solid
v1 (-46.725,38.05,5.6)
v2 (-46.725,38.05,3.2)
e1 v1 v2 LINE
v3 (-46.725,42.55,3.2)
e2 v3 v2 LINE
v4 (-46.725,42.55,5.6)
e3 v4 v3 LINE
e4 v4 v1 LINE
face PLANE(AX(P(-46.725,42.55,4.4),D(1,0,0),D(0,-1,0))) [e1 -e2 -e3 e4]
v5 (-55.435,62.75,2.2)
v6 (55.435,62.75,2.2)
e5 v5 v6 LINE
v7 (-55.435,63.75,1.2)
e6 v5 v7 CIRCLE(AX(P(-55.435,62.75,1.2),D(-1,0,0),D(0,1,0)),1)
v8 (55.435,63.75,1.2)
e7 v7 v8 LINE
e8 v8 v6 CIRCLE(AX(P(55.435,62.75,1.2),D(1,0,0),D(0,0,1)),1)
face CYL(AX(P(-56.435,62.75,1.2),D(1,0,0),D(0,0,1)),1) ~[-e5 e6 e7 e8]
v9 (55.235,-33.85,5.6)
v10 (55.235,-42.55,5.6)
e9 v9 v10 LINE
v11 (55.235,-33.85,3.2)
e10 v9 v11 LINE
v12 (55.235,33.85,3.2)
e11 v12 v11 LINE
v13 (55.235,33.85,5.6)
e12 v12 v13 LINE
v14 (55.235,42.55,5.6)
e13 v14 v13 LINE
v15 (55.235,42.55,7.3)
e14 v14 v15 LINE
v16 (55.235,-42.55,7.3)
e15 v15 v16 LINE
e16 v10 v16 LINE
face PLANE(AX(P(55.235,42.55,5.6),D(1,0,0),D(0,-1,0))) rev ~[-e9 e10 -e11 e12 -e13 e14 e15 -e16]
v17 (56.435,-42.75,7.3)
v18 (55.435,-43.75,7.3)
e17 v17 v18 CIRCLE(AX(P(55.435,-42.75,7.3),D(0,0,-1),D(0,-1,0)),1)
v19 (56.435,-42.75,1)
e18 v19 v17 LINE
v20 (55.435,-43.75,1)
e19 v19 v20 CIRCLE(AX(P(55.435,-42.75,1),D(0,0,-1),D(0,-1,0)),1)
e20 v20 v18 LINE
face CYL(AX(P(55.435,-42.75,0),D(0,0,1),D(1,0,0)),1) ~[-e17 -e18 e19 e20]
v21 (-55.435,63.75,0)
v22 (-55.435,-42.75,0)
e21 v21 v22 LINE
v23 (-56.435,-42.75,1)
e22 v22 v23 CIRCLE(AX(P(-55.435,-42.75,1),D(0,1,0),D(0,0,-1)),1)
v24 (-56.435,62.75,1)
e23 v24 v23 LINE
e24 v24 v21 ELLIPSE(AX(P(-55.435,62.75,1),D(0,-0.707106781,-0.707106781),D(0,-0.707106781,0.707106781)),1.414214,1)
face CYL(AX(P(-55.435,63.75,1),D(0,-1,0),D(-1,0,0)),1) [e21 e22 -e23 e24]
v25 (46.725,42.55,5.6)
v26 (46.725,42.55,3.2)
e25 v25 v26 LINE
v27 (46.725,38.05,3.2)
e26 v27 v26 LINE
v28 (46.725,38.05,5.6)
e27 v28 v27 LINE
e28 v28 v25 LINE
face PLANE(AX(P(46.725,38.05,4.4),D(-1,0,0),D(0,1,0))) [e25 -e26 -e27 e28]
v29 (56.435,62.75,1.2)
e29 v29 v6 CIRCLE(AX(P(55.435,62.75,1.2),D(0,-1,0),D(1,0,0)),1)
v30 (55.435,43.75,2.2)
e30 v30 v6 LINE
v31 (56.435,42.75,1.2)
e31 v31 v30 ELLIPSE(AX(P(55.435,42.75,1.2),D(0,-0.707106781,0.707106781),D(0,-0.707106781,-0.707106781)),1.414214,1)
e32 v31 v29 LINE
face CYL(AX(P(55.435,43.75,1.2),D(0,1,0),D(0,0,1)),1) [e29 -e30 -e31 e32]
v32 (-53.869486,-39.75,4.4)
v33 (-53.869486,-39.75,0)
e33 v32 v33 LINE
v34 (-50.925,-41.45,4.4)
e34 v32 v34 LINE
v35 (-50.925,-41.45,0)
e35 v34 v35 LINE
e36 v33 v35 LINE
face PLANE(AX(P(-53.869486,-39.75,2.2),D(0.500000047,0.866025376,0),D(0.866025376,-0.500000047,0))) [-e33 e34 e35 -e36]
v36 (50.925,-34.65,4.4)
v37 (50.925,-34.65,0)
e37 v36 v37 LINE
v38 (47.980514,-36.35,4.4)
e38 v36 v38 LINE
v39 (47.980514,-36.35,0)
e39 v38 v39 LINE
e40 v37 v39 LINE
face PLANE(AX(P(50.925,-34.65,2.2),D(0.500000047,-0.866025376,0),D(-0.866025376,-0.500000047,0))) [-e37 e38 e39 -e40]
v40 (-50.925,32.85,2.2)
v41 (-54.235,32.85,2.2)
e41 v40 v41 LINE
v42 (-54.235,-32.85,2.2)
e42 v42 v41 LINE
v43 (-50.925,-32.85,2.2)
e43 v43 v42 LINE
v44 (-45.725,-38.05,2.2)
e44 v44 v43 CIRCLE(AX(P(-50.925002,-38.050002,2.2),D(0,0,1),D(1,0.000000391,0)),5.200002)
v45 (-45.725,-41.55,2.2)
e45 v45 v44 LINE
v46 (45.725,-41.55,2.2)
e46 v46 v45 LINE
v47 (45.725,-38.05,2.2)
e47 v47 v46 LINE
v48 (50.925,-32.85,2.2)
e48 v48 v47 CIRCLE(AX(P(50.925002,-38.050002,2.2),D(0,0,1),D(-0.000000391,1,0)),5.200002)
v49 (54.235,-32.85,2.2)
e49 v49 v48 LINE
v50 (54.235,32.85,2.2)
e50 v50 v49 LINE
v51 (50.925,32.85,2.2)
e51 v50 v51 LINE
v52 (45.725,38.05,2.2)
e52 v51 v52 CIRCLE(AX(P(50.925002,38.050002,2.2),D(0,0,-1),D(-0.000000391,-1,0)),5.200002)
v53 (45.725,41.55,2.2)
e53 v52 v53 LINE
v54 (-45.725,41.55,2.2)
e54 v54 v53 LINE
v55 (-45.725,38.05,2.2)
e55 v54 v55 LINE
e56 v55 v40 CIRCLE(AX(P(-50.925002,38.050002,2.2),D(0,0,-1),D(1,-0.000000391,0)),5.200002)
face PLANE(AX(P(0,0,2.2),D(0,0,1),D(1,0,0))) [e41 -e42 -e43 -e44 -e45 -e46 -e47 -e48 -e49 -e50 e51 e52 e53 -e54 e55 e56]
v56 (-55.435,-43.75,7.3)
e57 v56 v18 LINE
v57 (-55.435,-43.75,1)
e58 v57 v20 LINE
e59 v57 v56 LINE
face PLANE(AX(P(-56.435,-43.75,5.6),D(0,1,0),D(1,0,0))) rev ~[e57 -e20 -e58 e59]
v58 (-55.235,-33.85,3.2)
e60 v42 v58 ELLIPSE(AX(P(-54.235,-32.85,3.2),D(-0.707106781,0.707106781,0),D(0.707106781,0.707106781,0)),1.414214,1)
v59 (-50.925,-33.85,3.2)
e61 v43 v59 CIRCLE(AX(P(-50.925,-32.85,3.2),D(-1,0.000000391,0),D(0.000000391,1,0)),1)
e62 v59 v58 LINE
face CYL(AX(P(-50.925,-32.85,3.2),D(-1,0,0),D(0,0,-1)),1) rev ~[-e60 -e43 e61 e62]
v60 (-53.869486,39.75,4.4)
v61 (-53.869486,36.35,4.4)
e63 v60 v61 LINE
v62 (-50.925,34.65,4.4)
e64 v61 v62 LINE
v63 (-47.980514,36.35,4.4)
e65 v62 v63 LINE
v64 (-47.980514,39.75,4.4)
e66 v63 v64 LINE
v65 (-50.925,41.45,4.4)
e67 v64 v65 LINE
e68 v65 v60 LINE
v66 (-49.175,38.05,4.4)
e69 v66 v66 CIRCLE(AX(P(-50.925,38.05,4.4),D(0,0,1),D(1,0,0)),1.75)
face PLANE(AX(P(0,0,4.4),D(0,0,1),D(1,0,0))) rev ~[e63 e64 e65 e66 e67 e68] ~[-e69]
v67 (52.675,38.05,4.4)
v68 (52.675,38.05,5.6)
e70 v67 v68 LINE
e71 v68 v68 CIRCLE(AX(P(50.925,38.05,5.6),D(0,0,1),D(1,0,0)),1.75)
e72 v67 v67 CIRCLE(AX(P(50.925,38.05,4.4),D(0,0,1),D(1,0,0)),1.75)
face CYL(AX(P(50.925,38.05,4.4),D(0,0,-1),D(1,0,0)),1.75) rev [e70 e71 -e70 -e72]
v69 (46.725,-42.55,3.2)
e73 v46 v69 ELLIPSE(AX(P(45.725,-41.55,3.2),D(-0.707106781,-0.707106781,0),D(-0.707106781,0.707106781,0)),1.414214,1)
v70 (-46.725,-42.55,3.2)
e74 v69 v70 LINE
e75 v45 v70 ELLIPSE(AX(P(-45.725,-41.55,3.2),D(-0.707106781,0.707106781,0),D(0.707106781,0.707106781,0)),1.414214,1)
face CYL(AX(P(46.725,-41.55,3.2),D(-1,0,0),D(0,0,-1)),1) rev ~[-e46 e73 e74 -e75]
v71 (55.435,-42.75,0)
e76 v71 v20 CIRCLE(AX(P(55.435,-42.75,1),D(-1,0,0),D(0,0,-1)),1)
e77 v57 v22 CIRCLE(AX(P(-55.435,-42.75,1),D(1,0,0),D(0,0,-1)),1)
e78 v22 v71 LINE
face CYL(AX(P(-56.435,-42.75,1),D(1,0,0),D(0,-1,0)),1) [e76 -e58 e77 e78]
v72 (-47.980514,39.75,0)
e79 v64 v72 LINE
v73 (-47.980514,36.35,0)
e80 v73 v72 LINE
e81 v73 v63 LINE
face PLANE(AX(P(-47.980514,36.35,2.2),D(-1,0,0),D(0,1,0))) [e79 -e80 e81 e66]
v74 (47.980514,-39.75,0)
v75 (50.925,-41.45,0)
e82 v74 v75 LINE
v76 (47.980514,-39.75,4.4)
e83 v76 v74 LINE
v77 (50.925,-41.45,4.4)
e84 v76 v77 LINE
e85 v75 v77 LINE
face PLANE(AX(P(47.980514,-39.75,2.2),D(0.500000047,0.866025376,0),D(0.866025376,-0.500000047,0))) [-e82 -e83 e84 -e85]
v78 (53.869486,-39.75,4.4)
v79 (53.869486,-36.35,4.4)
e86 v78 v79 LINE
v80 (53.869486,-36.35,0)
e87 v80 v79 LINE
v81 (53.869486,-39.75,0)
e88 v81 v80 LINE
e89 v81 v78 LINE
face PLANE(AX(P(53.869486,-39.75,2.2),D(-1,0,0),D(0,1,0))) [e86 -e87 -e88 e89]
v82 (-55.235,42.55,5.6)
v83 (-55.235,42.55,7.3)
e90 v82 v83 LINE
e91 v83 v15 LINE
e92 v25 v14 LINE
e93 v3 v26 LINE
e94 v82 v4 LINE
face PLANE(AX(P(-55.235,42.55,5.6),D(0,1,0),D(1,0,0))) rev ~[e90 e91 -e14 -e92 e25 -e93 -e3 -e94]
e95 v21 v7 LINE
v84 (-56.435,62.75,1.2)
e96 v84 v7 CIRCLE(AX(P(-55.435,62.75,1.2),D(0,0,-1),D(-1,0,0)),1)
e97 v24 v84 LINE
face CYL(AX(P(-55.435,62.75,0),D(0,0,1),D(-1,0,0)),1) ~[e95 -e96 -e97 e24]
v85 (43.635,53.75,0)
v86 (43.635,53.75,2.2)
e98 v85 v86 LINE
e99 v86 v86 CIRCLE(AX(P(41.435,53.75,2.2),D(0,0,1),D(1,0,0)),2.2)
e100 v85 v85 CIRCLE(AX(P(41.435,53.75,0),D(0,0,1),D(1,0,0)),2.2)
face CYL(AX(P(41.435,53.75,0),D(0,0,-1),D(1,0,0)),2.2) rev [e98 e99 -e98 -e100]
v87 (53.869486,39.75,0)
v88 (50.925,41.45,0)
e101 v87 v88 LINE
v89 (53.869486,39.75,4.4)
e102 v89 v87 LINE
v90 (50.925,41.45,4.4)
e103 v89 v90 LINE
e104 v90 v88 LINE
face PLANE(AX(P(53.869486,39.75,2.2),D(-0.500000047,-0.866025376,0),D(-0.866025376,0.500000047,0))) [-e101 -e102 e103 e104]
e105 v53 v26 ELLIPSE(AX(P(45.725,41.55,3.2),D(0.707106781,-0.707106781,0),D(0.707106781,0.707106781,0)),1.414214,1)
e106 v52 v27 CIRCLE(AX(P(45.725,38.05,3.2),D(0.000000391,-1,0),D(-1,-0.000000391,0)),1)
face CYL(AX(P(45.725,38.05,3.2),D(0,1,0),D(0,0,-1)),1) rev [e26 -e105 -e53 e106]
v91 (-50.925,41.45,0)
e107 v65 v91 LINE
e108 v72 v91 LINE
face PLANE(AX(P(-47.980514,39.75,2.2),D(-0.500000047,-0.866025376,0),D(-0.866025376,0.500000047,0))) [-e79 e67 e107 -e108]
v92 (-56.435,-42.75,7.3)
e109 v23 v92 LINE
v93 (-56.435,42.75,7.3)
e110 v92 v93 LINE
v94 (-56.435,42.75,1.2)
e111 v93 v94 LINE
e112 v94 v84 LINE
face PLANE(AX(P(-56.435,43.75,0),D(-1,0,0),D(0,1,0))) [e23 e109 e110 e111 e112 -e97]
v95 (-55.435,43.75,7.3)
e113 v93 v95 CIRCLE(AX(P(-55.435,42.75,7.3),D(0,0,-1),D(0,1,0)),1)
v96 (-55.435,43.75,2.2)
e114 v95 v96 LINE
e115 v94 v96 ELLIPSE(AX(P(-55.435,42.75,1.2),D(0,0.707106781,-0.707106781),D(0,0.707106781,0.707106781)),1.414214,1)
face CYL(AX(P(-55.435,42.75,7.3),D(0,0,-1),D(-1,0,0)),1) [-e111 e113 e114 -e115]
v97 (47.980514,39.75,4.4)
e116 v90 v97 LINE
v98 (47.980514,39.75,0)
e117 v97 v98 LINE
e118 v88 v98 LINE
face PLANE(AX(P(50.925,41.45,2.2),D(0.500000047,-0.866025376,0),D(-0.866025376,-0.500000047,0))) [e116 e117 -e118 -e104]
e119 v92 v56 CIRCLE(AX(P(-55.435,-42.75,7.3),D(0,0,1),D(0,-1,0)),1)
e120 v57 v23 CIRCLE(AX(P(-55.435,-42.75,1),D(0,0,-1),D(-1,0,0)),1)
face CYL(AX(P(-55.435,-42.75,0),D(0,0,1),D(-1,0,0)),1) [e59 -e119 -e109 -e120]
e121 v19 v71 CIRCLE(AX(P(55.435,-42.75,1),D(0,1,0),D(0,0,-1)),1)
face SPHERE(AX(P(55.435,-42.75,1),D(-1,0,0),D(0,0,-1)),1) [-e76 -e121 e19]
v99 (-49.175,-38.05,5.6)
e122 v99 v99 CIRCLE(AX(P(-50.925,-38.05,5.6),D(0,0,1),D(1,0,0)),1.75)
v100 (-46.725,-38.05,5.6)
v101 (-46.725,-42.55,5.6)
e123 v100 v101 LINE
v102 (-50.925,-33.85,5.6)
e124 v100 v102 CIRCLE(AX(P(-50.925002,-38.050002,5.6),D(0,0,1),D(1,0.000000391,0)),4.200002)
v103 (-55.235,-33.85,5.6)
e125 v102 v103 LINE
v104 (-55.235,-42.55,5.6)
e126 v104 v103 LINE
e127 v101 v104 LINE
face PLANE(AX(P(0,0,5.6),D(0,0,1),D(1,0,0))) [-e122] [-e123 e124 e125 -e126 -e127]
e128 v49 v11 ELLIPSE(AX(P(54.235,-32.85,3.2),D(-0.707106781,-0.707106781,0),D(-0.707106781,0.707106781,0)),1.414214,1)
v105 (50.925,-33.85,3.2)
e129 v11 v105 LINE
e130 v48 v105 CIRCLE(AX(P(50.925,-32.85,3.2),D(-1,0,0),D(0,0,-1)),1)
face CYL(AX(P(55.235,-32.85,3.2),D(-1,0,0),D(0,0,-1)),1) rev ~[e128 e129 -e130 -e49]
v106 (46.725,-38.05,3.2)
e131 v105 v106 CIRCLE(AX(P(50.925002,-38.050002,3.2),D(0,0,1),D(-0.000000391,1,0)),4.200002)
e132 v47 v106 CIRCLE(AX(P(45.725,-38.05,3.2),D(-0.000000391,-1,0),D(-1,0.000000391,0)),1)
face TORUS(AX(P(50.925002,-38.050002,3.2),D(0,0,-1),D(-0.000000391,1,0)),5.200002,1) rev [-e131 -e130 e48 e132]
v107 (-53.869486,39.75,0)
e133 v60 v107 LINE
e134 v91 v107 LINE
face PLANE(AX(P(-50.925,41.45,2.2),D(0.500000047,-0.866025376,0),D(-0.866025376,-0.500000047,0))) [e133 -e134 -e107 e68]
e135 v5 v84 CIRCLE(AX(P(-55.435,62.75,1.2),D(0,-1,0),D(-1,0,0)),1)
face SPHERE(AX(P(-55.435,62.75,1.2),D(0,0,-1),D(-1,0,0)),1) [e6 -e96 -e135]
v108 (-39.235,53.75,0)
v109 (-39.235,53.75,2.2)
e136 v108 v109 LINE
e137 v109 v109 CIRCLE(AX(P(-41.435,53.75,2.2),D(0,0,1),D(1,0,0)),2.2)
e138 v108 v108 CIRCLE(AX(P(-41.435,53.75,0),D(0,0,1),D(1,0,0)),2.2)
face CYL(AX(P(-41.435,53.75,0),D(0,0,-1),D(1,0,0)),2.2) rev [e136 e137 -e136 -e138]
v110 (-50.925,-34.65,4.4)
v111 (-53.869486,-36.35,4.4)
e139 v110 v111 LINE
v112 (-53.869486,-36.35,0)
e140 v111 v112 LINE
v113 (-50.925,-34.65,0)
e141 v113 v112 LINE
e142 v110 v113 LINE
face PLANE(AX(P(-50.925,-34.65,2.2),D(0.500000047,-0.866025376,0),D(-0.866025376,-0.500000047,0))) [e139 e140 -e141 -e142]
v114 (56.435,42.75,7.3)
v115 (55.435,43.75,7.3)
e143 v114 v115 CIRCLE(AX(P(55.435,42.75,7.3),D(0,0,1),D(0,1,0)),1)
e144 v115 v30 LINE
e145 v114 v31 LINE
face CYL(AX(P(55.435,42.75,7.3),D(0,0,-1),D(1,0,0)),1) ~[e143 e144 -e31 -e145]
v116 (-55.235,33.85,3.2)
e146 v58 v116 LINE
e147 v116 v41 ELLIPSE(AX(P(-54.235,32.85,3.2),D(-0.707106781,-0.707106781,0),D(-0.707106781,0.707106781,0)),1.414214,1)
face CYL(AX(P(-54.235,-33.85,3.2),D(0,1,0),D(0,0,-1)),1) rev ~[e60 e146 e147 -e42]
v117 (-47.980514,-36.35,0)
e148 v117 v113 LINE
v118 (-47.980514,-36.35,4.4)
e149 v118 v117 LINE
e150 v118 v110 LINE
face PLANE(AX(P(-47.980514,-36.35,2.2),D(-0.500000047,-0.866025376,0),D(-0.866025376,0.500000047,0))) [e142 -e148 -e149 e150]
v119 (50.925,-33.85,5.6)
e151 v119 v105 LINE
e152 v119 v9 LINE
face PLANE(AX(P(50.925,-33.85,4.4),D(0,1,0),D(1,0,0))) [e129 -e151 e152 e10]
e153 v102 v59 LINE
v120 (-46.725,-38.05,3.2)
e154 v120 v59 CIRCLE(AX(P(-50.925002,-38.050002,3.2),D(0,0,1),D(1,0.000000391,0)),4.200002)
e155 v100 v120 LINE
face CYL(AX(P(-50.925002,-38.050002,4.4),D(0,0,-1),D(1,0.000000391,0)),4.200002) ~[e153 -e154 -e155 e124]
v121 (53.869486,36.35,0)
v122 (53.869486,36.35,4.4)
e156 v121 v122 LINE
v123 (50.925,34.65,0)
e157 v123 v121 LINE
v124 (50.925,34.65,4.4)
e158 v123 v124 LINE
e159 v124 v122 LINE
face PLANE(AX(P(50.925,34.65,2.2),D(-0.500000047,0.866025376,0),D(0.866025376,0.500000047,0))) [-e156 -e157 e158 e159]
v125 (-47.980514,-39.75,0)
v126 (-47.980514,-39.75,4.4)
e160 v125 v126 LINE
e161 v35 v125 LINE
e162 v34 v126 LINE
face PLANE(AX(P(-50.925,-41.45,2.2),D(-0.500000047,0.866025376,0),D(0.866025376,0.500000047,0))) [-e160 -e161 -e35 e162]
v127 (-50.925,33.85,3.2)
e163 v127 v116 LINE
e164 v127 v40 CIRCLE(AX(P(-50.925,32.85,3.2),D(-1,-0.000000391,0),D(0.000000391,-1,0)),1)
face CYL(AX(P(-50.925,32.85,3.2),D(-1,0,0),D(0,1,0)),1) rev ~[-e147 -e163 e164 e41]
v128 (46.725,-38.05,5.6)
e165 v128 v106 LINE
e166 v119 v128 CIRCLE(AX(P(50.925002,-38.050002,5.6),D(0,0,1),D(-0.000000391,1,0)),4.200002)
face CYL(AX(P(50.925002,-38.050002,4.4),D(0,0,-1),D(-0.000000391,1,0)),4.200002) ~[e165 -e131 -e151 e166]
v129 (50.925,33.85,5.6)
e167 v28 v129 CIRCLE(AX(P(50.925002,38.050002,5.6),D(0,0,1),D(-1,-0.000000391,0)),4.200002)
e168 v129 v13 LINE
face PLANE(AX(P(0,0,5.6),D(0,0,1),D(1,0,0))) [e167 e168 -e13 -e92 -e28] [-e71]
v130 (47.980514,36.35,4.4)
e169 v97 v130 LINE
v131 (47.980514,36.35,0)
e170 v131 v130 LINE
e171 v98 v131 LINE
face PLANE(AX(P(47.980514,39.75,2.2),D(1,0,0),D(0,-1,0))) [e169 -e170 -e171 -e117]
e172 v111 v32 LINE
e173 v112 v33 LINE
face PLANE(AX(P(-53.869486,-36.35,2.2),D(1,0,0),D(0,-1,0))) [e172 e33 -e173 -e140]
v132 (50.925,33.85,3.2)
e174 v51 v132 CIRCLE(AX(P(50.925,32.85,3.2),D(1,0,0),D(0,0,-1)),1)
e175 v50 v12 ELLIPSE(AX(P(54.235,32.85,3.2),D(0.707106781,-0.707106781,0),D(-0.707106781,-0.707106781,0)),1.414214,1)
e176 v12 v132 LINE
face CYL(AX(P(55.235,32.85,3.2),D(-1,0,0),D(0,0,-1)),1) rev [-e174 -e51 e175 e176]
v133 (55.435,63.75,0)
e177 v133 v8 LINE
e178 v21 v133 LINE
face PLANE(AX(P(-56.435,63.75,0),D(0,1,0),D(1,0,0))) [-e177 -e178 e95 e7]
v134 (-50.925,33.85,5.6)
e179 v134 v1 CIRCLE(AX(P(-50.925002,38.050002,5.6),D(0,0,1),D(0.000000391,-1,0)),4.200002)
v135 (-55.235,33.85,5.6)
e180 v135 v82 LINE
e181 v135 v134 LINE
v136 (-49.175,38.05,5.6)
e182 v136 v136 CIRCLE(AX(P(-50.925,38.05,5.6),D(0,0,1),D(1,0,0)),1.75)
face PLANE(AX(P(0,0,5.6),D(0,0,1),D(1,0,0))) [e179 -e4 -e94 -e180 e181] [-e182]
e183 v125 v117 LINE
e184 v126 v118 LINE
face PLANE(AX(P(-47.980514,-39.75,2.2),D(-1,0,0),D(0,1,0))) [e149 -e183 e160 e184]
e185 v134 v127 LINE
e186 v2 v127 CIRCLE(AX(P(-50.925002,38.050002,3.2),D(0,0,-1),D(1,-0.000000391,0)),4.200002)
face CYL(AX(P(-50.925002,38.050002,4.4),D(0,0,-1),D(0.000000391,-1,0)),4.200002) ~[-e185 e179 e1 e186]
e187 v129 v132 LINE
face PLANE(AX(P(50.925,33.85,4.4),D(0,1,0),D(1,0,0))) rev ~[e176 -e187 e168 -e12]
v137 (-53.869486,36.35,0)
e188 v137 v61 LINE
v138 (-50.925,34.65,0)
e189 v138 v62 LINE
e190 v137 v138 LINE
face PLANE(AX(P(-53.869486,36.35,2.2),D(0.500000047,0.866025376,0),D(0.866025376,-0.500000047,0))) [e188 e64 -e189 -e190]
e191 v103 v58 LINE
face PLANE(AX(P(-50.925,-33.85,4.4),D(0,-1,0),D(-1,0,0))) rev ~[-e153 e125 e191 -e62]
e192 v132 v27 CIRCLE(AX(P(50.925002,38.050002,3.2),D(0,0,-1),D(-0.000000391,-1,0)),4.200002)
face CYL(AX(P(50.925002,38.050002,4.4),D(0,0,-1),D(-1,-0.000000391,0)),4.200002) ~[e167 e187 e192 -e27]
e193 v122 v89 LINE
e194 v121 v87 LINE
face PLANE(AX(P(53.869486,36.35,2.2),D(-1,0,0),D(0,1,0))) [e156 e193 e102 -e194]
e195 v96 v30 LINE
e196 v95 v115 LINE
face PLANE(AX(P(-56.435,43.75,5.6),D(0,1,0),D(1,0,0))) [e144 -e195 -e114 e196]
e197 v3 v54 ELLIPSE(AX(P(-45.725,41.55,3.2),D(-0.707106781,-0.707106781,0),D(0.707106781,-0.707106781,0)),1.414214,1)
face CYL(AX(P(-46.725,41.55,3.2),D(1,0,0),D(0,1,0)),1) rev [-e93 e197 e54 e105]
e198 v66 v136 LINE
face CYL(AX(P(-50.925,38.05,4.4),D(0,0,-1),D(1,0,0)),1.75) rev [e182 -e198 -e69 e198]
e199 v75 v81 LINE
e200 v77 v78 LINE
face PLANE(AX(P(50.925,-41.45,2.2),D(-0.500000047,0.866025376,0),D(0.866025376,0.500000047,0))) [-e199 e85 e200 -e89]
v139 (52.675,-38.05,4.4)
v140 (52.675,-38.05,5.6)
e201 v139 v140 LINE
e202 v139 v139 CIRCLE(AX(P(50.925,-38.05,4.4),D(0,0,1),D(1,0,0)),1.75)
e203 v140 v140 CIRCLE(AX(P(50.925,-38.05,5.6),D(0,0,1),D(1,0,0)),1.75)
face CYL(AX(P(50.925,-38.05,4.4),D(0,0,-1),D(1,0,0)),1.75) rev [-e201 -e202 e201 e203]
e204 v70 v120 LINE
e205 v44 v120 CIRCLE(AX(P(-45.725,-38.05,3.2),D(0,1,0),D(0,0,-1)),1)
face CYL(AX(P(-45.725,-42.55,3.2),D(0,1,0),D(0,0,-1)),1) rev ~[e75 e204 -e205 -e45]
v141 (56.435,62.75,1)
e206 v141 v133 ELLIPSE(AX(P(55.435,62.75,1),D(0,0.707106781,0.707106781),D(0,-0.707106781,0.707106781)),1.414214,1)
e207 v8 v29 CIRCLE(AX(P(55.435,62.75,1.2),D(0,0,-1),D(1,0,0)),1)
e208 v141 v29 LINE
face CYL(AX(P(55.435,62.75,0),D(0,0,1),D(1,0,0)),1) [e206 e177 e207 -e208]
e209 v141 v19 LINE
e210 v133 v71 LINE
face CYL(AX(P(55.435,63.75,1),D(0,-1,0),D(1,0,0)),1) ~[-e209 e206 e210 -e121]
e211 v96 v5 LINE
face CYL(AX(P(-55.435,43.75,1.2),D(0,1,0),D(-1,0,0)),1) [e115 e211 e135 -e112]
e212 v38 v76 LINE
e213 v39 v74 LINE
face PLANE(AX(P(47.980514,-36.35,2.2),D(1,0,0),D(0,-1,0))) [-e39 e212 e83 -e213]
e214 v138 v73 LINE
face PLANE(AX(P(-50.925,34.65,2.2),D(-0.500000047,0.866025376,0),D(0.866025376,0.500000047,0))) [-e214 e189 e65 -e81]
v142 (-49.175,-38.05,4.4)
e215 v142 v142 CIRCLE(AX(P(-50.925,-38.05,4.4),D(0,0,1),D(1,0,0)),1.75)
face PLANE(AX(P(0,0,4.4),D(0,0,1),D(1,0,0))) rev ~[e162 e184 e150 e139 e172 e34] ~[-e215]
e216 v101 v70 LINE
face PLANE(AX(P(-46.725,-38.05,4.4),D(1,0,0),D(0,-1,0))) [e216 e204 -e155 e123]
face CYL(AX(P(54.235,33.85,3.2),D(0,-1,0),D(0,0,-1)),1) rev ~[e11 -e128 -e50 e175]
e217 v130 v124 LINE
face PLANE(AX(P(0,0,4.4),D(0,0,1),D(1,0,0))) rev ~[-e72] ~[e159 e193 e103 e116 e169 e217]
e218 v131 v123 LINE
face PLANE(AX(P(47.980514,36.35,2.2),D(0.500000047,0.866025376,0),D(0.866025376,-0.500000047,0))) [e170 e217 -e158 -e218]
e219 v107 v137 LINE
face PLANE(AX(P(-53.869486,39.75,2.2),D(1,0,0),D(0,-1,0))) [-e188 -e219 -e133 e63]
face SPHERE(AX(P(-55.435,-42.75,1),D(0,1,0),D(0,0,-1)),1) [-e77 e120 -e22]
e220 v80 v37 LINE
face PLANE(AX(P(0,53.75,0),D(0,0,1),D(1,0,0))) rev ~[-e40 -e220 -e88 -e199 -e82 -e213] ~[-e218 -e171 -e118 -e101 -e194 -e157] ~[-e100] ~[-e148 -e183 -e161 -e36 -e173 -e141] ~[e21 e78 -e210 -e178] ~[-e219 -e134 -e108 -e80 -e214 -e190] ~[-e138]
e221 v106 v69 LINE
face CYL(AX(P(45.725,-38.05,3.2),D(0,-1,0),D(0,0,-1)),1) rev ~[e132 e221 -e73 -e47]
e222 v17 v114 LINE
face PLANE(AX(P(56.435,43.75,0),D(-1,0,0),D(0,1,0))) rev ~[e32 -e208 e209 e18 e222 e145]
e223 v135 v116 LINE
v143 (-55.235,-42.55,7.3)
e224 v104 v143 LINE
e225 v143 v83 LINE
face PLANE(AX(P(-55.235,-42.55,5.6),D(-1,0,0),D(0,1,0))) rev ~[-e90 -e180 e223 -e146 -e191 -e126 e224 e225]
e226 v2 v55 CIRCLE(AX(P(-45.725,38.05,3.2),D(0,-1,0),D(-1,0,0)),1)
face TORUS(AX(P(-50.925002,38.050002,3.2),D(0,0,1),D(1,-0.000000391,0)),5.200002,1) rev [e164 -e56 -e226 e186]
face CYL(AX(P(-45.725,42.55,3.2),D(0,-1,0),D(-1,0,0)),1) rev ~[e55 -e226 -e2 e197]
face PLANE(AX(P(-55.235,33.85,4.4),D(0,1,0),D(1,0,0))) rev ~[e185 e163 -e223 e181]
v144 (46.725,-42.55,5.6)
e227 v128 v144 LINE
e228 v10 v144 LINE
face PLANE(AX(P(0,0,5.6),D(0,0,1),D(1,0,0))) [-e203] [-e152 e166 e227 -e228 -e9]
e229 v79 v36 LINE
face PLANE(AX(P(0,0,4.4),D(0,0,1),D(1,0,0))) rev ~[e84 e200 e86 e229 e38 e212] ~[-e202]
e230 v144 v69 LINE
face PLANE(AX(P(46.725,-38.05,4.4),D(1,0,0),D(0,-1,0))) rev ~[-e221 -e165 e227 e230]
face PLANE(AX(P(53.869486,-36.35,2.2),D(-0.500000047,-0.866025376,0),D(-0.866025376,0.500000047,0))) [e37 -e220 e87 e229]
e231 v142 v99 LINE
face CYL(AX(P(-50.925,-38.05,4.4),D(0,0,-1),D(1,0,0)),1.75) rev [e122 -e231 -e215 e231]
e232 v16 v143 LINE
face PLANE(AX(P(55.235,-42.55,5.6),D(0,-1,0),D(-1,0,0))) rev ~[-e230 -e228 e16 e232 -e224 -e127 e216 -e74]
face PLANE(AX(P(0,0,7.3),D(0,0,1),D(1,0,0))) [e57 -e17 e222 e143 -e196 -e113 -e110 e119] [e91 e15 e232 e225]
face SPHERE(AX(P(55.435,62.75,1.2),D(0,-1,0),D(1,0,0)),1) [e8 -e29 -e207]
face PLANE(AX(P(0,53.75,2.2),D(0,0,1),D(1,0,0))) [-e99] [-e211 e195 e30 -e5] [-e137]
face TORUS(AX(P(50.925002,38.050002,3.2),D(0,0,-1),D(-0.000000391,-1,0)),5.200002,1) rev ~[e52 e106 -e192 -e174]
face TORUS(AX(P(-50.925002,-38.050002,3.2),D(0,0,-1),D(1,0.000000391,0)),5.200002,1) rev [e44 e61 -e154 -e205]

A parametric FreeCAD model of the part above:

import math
import FreeCAD as App
import Part
import Sketcher
Q = App.Units.Quantity


def edges_at(feature, points):
    """Names of the edges that pass closest to the given points."""
    edges = feature.Shape.Edges
    near = lambda p: min(range(len(edges)), key=lambda i: edges[i].distToShape(Part.Vertex(*p))[0])
    return sorted({f"Edge{near(p) + 1}" for p in points})


def add_polygon(sketch, points):
    """Adds a closed chain of lines whose ends are joined by coincident constraints."""
    first, n = sketch.GeometryCount, len(points)
    for a, b in zip(points, points[1:] + points[:1]):
        sketch.addGeometry(Part.LineSegment(App.Vector(*a, 0), App.Vector(*b, 0)), False)
    for i in range(n):
        sketch.addConstraint(Sketcher.Constraint("Coincident", first + i, 2, first + (i + 1) % n, 1))

doc = App.newDocument("Part")
params = doc.addObject("Spreadsheet::Sheet", "Params")
for row, (alias, value) in enumerate([
    ("sketch1_height", "87.5 mm"),
    ("sketch1_height2", "3.4 mm"),
    ("sketch1_width", "112.87 mm"),
    ("pad1_length", "2.2 mm"),
    ("sketch2_radius", "4.200002 mm"),
    ("sketch2_height", "87.5 mm"),
    ("sketch2_height2", "3.4 mm"),
    ("sketch2_height3", "67.7 mm"),
    ("sketch2_height4", "4.5 mm"),
    ("pad2_length", "2.2 mm"),
    ("sketch3_diameter", "3.5 mm"),
    ("sketch3_radius", "4.200002 mm"),
    ("sketch3_height", "87.5 mm"),
    ("sketch3_height2", "67.7 mm"),
    ("sketch3_height3", "4.5 mm"),
    ("pad3_length", "1.2 mm"),
    ("sketch4_height", "87.5 mm"),
    ("sketch4_height2", "85.1 mm"),
    ("sketch4_width", "112.87 mm"),
    ("sketch4_width2", "110.47 mm"),
    ("pad4_length", "1.7 mm"),
    ("sketch5_diameter", "4.4 mm"),
    ("sketch5_height", "20 mm"),
    ("sketch5_width", "112.87 mm"),
    ("pad5_length", "2.2 mm"),
    ("fillet_radius", "1 mm"),
], start=1):
    params.set(f"A{row}", alias)
    params.set(f"B{row}", "=" + value)
    params.setAlias(f"B{row}", alias)

body = doc.addObject("PartDesign::Body", "Body")

# Sketch on XY plane
sketch1 = body.newObject("Sketcher::SketchObject", "Sketch")
sketch1.AttachmentSupport = (doc.getObject("XY_Plane"), [""])
sketch1.MapMode = "FlatFace"
add_polygon(sketch1, [(-56.435, 43.75), (-56.435, -43.75), (56.435, -43.75), (56.435, 43.75)])  # lines 0-3
add_polygon(sketch1, [(-47.980514, -36.35), (-47.980514, -39.75), (-50.925, -41.45), (-53.869486, -39.75), (-53.869486, -36.35), (-50.925, -34.65)])  # lines 4-9
add_polygon(sketch1, [(50.925, -34.65), (53.869486, -36.35), (53.869486, -39.75), (50.925, -41.45), (47.980514, -39.75), (47.980514, -36.35)])  # lines 10-15
add_polygon(sketch1, [(-47.980514, 39.75), (-47.980514, 36.35), (-50.925, 34.65), (-53.869486, 36.35), (-53.869486, 39.75), (-50.925, 41.45)])  # lines 16-21
add_polygon(sketch1, [(53.869486, 39.75), (53.869486, 36.35), (50.925, 34.65), (47.980514, 36.35), (47.980514, 39.75), (50.925, 41.45)])  # lines 22-27
sketch1.addConstraint(Sketcher.Constraint("Vertical", 0))
sketch1.addConstraint(Sketcher.Constraint("Horizontal", 1))
sketch1.addConstraint(Sketcher.Constraint("Vertical", 2))
sketch1.addConstraint(Sketcher.Constraint("Horizontal", 3))
sketch1.addConstraint(Sketcher.Constraint("Vertical", 4))
sketch1.addConstraint(Sketcher.Constraint("Vertical", 7))
sketch1.addConstraint(Sketcher.Constraint("Vertical", 11))
sketch1.addConstraint(Sketcher.Constraint("Vertical", 14))
sketch1.addConstraint(Sketcher.Constraint("Vertical", 16))
sketch1.addConstraint(Sketcher.Constraint("Vertical", 19))
sketch1.addConstraint(Sketcher.Constraint("Vertical", 22))
sketch1.addConstraint(Sketcher.Constraint("Vertical", 25))
sketch1.addConstraint(Sketcher.Constraint("Symmetric", 0, 2, 2, 2, -1, 1))
sketch1.addConstraint(Sketcher.Constraint("Symmetric", 14, 2, 16, 2, -1, 1))
sketch1.addConstraint(Sketcher.Constraint("Symmetric", 15, 2, 17, 2, -1, 1))
sketch1.addConstraint(Sketcher.Constraint("Symmetric", 10, 2, 18, 2, -1, 1))
sketch1.addConstraint(Sketcher.Constraint("Symmetric", 12, 2, 20, 2, -1, 1))
sketch1.addConstraint(Sketcher.Constraint("Symmetric", 7, 2, 22, 2, -1, 1))
sketch1.addConstraint(Sketcher.Constraint("Symmetric", 8, 2, 23, 2, -1, 1))
sketch1.addConstraint(Sketcher.Constraint("Symmetric", 9, 2, 24, 2, -1, 1))
sketch1.addConstraint(Sketcher.Constraint("Symmetric", 5, 2, 26, 2, -1, 1))
sketch1.addConstraint(Sketcher.Constraint("Symmetric", 7, 2, 10, 2, -2))
sketch1.addConstraint(Sketcher.Constraint("Symmetric", 5, 2, 12, 2, -2))
sketch1.addConstraint(Sketcher.Constraint("Symmetric", 4, 2, 13, 2, -2))
sketch1.addConstraint(Sketcher.Constraint("Symmetric", 8, 2, 15, 2, -2))
sketch1.addConstraint(Sketcher.Constraint("Parallel", 5, 8))
sketch1.addConstraint(Sketcher.Constraint("Parallel", 6, 9))
sketch1.addConstraint(Sketcher.Constraint("Parallel", 9, 10))
sketch1.addConstraint(Sketcher.Constraint("Parallel", 8, 12))
sketch1.addConstraint(Sketcher.Constraint("Parallel", 12, 15))
sketch1.addConstraint(Sketcher.Constraint("Parallel", 17, 20))
sketch1.addConstraint(Sketcher.Constraint("Parallel", 18, 21))
sketch1.addConstraint(Sketcher.Constraint("Parallel", 23, 26))
sketch1.addConstraint(Sketcher.Constraint("Parallel", 24, 27))
sketch1.addConstraint(Sketcher.Constraint("Horizontal", 4, 2, 6, 2))
sketch1.addConstraint(Sketcher.Constraint("Horizontal", 7, 2, 9, 2))
sketch1.addConstraint(Sketcher.Constraint("Angle", 5, Q("-149.999997 deg")))
sketch1.addConstraint(Sketcher.Constraint("DistanceY", 0, 2, 0, 1, Q("87.5 mm")))
sketch1.addConstraint(Sketcher.Constraint("DistanceY", 4, 2, 4, 1, Q("3.4 mm")))
sketch1.addConstraint(Sketcher.Constraint("DistanceY", 0, 2, 4, 2, Q("4 mm")))
sketch1.addConstraint(Sketcher.Constraint("DistanceY", 8, 2, 16, 2, Q("71 mm")))
sketch1.addConstraint(Sketcher.Constraint("DistanceX", 1, 1, 1, 2, Q("112.87 mm")))
sketch1.addConstraint(Sketcher.Constraint("DistanceX", 0, 2, 5, 2, Q("5.51 mm")))
sketch1.setExpression("Constraints[65]", "Params.sketch1_height")
sketch1.setExpression("Constraints[66]", "Params.sketch1_height2")
sketch1.setExpression("Constraints[69]", "Params.sketch1_width")
pad1 = body.newObject("PartDesign::Pad", "Pad")
pad1.Profile = sketch1
pad1.setExpression("Length", "Params.pad1_length")

# Sketch on XY plane
sketch2 = body.newObject("Sketcher::SketchObject", "Sketch001")
sketch2.AttachmentSupport = (doc.getObject("XY_Plane"), [""])
sketch2.MapMode = "FlatFace"
sketch2.AttachmentOffset = App.Placement(App.Vector(0, 0, 2.2), App.Rotation())
add_polygon(sketch2, [(-56.435, 43.75), (-56.435, -43.75), (56.435, -43.75), (56.435, 43.75)])  # lines 0-3
add_polygon(sketch2, [(-47.980514, -36.35), (-47.980514, -39.75), (-50.925, -41.45), (-53.869486, -39.75), (-53.869486, -36.35), (-50.925, -34.65)])  # lines 4-9
add_polygon(sketch2, [(50.925, -34.65), (53.869486, -36.35), (53.869486, -39.75), (50.925, -41.45), (47.980514, -39.75), (47.980514, -36.35)])  # lines 10-15
sketch2.addGeometry(Part.LineSegment(App.Vector(50.925, 33.85, 0), App.Vector(55.235, 33.85, 0)), False)  # 16
sketch2.addGeometry(Part.LineSegment(App.Vector(55.235, 33.85, 0), App.Vector(55.235, -33.85, 0)), False)  # 17
sketch2.addGeometry(Part.LineSegment(App.Vector(55.235, -33.85, 0), App.Vector(50.925, -33.85, 0)), False)  # 18
sketch2.addGeometry(Part.ArcOfCircle(Part.Circle(App.Vector(50.925002, -38.050002, 0), App.Vector(0, 0, 1), 4.200002), math.radians(90.000022), math.radians(179.999978)), False)  # 19
sketch2.addGeometry(Part.LineSegment(App.Vector(46.725, -38.05, 0), App.Vector(46.725, -42.55, 0)), False)  # 20
sketch2.addGeometry(Part.LineSegment(App.Vector(46.725, -42.55, 0), App.Vector(-46.725, -42.55, 0)), False)  # 21
sketch2.addGeometry(Part.LineSegment(App.Vector(-46.725, -42.55, 0), App.Vector(-46.725, -38.05, 0)), False)  # 22
sketch2.addGeometry(Part.ArcOfCircle(Part.Circle(App.Vector(-50.925002, -38.050002, 0), App.Vector(0, 0, 1), 4.200002), math.radians(0.000022), math.radians(89.999978)), False)  # 23
sketch2.addGeometry(Part.LineSegment(App.Vector(-50.925, -33.85, 0), App.Vector(-55.235, -33.85, 0)), False)  # 24
sketch2.addGeometry(Part.LineSegment(App.Vector(-55.235, -33.85, 0), App.Vector(-55.235, 33.85, 0)), False)  # 25
sketch2.addGeometry(Part.LineSegment(App.Vector(-55.235, 33.85, 0), App.Vector(-50.925, 33.85, 0)), False)  # 26
sketch2.addGeometry(Part.ArcOfCircle(Part.Circle(App.Vector(-50.925002, 38.050002, 0), App.Vector(0, 0, 1), 4.200002), math.radians(-89.999978), math.radians(-0.000022)), False)  # 27
sketch2.addGeometry(Part.LineSegment(App.Vector(-46.725, 38.05, 0), App.Vector(-46.725, 42.55, 0)), False)  # 28
sketch2.addGeometry(Part.LineSegment(App.Vector(-46.725, 42.55, 0), App.Vector(46.725, 42.55, 0)), False)  # 29
sketch2.addGeometry(Part.LineSegment(App.Vector(46.725, 42.55, 0), App.Vector(46.725, 38.05, 0)), False)  # 30
sketch2.addGeometry(Part.ArcOfCircle(Part.Circle(App.Vector(50.925002, 38.050002, 0), App.Vector(0, 0, 1), 4.200002), math.radians(-179.999978), math.radians(-90.000022)), False)  # 31
add_polygon(sketch2, [(-47.980514, 39.75), (-47.980514, 36.35), (-50.925, 34.65), (-53.869486, 36.35), (-53.869486, 39.75), (-50.925, 41.45)])  # lines 32-37
add_polygon(sketch2, [(53.869486, 39.75), (53.869486, 36.35), (50.925, 34.65), (47.980514, 36.35), (47.980514, 39.75), (50.925, 41.45)])  # lines 38-43
sketch2.addConstraint(Sketcher.Constraint("Coincident", 16, 2, 17, 1))
sketch2.addConstraint(Sketcher.Constraint("Coincident", 17, 2, 18, 1))
sketch2.addConstraint(Sketcher.Constraint("Tangent", 18, 2, 19, 1))
sketch2.addConstraint(Sketcher.Constraint("Tangent", 19, 2, 20, 1))
sketch2.addConstraint(Sketcher.Constraint("Coincident", 20, 2, 21, 1))
sketch2.addConstraint(Sketcher.Constraint("Coincident", 21, 2, 22, 1))
sketch2.addConstraint(Sketcher.Constraint("Tangent", 22, 2, 23, 1))
sketch2.addConstraint(Sketcher.Constraint("Tangent", 23, 2, 24, 1))
sketch2.addConstraint(Sketcher.Constraint("Coincident", 24, 2, 25, 1))
sketch2.addConstraint(Sketcher.Constraint("Coincident", 25, 2, 26, 1))
sketch2.addConstraint(Sketcher.Constraint("Tangent", 26, 2, 27, 1))
sketch2.addConstraint(Sketcher.Constraint("Tangent", 27, 2, 28, 1))
sketch2.addConstraint(Sketcher.Constraint("Coincident", 28, 2, 29, 1))
sketch2.addConstraint(Sketcher.Constraint("Coincident", 29, 2, 30, 1))
sketch2.addConstraint(Sketcher.Constraint("Tangent", 30, 2, 31, 1))
sketch2.addConstraint(Sketcher.Constraint("Tangent", 31, 2, 16, 1))
sketch2.addConstraint(Sketcher.Constraint("Vertical", 0))
sketch2.addConstraint(Sketcher.Constraint("Horizontal", 1))
sketch2.addConstraint(Sketcher.Constraint("Vertical", 2))
sketch2.addConstraint(Sketcher.Constraint("Horizontal", 3))
sketch2.addConstraint(Sketcher.Constraint("Vertical", 4))
sketch2.addConstraint(Sketcher.Constraint("Vertical", 7))
sketch2.addConstraint(Sketcher.Constraint("Vertical", 11))
sketch2.addConstraint(Sketcher.Constraint("Vertical", 14))
sketch2.addConstraint(Sketcher.Constraint("Horizontal", 16))
sketch2.addConstraint(Sketcher.Constraint("Vertical", 17))
sketch2.addConstraint(Sketcher.Constraint("Horizontal", 18))
sketch2.addConstraint(Sketcher.Constraint("Vertical", 20))
sketch2.addConstraint(Sketcher.Constraint("Horizontal", 21))
sketch2.addConstraint(Sketcher.Constraint("Vertical", 22))
sketch2.addConstraint(Sketcher.Constraint("Horizontal", 24))
sketch2.addConstraint(Sketcher.Constraint("Vertical", 25))
sketch2.addConstraint(Sketcher.Constraint("Horizontal", 26))
sketch2.addConstraint(Sketcher.Constraint("Vertical", 28))
sketch2.addConstraint(Sketcher.Constraint("Horizontal", 29))
sketch2.addConstraint(Sketcher.Constraint("Vertical", 30))
sketch2.addConstraint(Sketcher.Constraint("Vertical", 32))
sketch2.addConstraint(Sketcher.Constraint("Vertical", 35))
sketch2.addConstraint(Sketcher.Constraint("Vertical", 38))
sketch2.addConstraint(Sketcher.Constraint("Vertical", 41))
sketch2.addConstraint(Sketcher.Constraint("Equal", 19, 23))
sketch2.addConstraint(Sketcher.Constraint("Equal", 23, 27))
sketch2.addConstraint(Sketcher.Constraint("Equal", 27, 31))
sketch2.addConstraint(Sketcher.Constraint("Symmetric", 19, 3, 27, 3, -1, 1))
sketch2.addConstraint(Sketcher.Constraint("Symmetric", 23, 3, 31, 3, -1, 1))
sketch2.addConstraint(Sketcher.Constraint("Symmetric", 0, 2, 2, 2, -1, 1))
sketch2.addConstraint(Sketcher.Constraint("Symmetric", 14, 2, 32, 2, -1, 1))
sketch2.addConstraint(Sketcher.Constraint("Symmetric", 15, 2, 33, 2, -1, 1))
sketch2.addConstraint(Sketcher.Constraint("Symmetric", 10, 2, 34, 2, -1, 1))
sketch2.addConstraint(Sketcher.Constraint("Symmetric", 12, 2, 36, 2, -1, 1))
sketch2.addConstraint(Sketcher.Constraint("Symmetric", 7, 2, 38, 2, -1, 1))
sketch2.addConstraint(Sketcher.Constraint("Symmetric", 8, 2, 39, 2, -1, 1))
sketch2.addConstraint(Sketcher.Constraint("Symmetric", 9, 2, 40, 2, -1, 1))
sketch2.addConstraint(Sketcher.Constraint("Symmetric", 5, 2, 42, 2, -1, 1))
sketch2.addConstraint(Sketcher.Constraint("Symmetric", 19, 3, 23, 3, -2))
sketch2.addConstraint(Sketcher.Constraint("Symmetric", 7, 2, 10, 2, -2))
sketch2.addConstraint(Sketcher.Constraint("Symmetric", 5, 2, 12, 2, -2))
sketch2.addConstraint(Sketcher.Constraint("Symmetric", 4, 2, 13, 2, -2))
sketch2.addConstraint(Sketcher.Constraint("Symmetric", 8, 2, 15, 2, -2))
sketch2.addConstraint(Sketcher.Constraint("Parallel", 5, 8))
sketch2.addConstraint(Sketcher.Constraint("Parallel", 6, 9))
sketch2.addConstraint(Sketcher.Constraint("Parallel", 9, 10))
sketch2.addConstraint(Sketcher.Constraint("Parallel", 8, 12))
sketch2.addConstraint(Sketcher.Constraint("Parallel", 12, 15))
sketch2.addConstraint(Sketcher.Constraint("Parallel", 33, 36))
sketch2.addConstraint(Sketcher.Constraint("Parallel", 34, 37))
sketch2.addConstraint(Sketcher.Constraint("Parallel", 39, 42))
sketch2.addConstraint(Sketcher.Constraint("Parallel", 40, 43))
sketch2.addConstraint(Sketcher.Constraint("Horizontal", 4, 2, 6, 2))
sketch2.addConstraint(Sketcher.Constraint("Horizontal", 7, 2, 9, 2))
sketch2.addConstraint(Sketcher.Constraint("Vertical", 27, 3, 5, 2))
sketch2.addConstraint(Sketcher.Constraint("Equal", 18, 24))
sketch2.addConstraint(Sketcher.Constraint("Equal", 22, 28))
sketch2.addConstraint(Sketcher.Constraint("Radius", 19, Q("4.200002 mm")))
sketch2.addConstraint(Sketcher.Constraint("Angle", 5, Q("-149.999997 deg")))
sketch2.addConstraint(Sketcher.Constraint("DistanceY", 0, 2, 0, 1, Q("87.5 mm")))
sketch2.addConstraint(Sketcher.Constraint("DistanceY", 4, 2, 4, 1, Q("3.4 mm")))
sketch2.addConstraint(Sketcher.Constraint("DistanceY", 17, 2, 17, 1, Q("67.7 mm")))
sketch2.addConstraint(Sketcher.Constraint("DistanceY", 20, 2, 20, 1, Q("4.5 mm")))
sketch2.addConstraint(Sketcher.Constraint("DistanceY", 0, 2, 4, 2, Q("4 mm")))
sketch2.addConstraint(Sketcher.Constraint("Distance", 5, Q("3.4 mm")))
sketch2.addConstraint(Sketcher.Constraint("DistanceX", 1, 1, 1, 2, Q("112.87 mm")))
sketch2.addConstraint(Sketcher.Constraint("DistanceX", 16, 1, 16, 2, Q("4.31 mm")))
sketch2.addConstraint(Sketcher.Constraint("DistanceX", 21, 2, 21, 1, Q("93.45 mm")))
sketch2.setExpression("Constraints[101]", "Params.sketch2_radius")
sketch2.setExpression("Constraints[103]", "Params.sketch2_height")
sketch2.setExpression("Constraints[104]", "Params.sketch2_height2")
sketch2.setExpression("Constraints[105]", "Params.sketch2_height3")
sketch2.setExpression("Constraints[106]", "Params.sketch2_height4")
pad2 = body.newObject("PartDesign::Pad", "Pad001")
pad2.Profile = sketch2
pad2.setExpression("Length", "Params.pad2_length")

# Sketch on XY plane
sketch3 = body.newObject("Sketcher::SketchObject", "Sketch002")
sketch3.AttachmentSupport = (doc.getObject("XY_Plane"), [""])
sketch3.MapMode = "FlatFace"
sketch3.AttachmentOffset = App.Placement(App.Vector(0, 0, 4.4), App.Rotation())
add_polygon(sketch3, [(-56.435, 43.75), (-56.435, -43.75), (56.435, -43.75), (56.435, 43.75)])  # lines 0-3
sketch3.addGeometry(Part.Circle(App.Vector(-50.925, -38.05, 0), App.Vector(0, 0, 1), 1.75), False)  # 4
sketch3.addGeometry(Part.Circle(App.Vector(50.925, -38.05, 0), App.Vector(0, 0, 1), 1.75), False)  # 5
sketch3.addGeometry(Part.LineSegment(App.Vector(50.925, 33.85, 0), App.Vector(55.235, 33.85, 0)), False)  # 6
sketch3.addGeometry(Part.LineSegment(App.Vector(55.235, 33.85, 0), App.Vector(55.235, -33.85, 0)), False)  # 7
sketch3.addGeometry(Part.LineSegment(App.Vector(55.235, -33.85, 0), App.Vector(50.925, -33.85, 0)), False)  # 8
sketch3.addGeometry(Part.ArcOfCircle(Part.Circle(App.Vector(50.925002, -38.050002, 0), App.Vector(0, 0, 1), 4.200002), math.radians(90.000022), math.radians(179.999978)), False)  # 9
sketch3.addGeometry(Part.LineSegment(App.Vector(46.725, -38.05, 0), App.Vector(46.725, -42.55, 0)), False)  # 10
sketch3.addGeometry(Part.LineSegment(App.Vector(46.725, -42.55, 0), App.Vector(-46.725, -42.55, 0)), False)  # 11
sketch3.addGeometry(Part.LineSegment(App.Vector(-46.725, -42.55, 0), App.Vector(-46.725, -38.05, 0)), False)  # 12
sketch3.addGeometry(Part.ArcOfCircle(Part.Circle(App.Vector(-50.925002, -38.050002, 0), App.Vector(0, 0, 1), 4.200002), math.radians(0.000022), math.radians(89.999978)), False)  # 13
sketch3.addGeometry(Part.LineSegment(App.Vector(-50.925, -33.85, 0), App.Vector(-55.235, -33.85, 0)), False)  # 14
sketch3.addGeometry(Part.LineSegment(App.Vector(-55.235, -33.85, 0), App.Vector(-55.235, 33.85, 0)), False)  # 15
sketch3.addGeometry(Part.LineSegment(App.Vector(-55.235, 33.85, 0), App.Vector(-50.925, 33.85, 0)), False)  # 16
sketch3.addGeometry(Part.ArcOfCircle(Part.Circle(App.Vector(-50.925002, 38.050002, 0), App.Vector(0, 0, 1), 4.200002), math.radians(-89.999978), math.radians(-0.000022)), False)  # 17
sketch3.addGeometry(Part.LineSegment(App.Vector(-46.725, 38.05, 0), App.Vector(-46.725, 42.55, 0)), False)  # 18
sketch3.addGeometry(Part.LineSegment(App.Vector(-46.725, 42.55, 0), App.Vector(46.725, 42.55, 0)), False)  # 19
sketch3.addGeometry(Part.LineSegment(App.Vector(46.725, 42.55, 0), App.Vector(46.725, 38.05, 0)), False)  # 20
sketch3.addGeometry(Part.ArcOfCircle(Part.Circle(App.Vector(50.925002, 38.050002, 0), App.Vector(0, 0, 1), 4.200002), math.radians(-179.999978), math.radians(-90.000022)), False)  # 21
sketch3.addGeometry(Part.Circle(App.Vector(-50.925, 38.05, 0), App.Vector(0, 0, 1), 1.75), False)  # 22
sketch3.addGeometry(Part.Circle(App.Vector(50.925, 38.05, 0), App.Vector(0, 0, 1), 1.75), False)  # 23
sketch3.addConstraint(Sketcher.Constraint("Coincident", 6, 2, 7, 1))
sketch3.addConstraint(Sketcher.Constraint("Coincident", 7, 2, 8, 1))
sketch3.addConstraint(Sketcher.Constraint("Tangent", 8, 2, 9, 1))
sketch3.addConstraint(Sketcher.Constraint("Tangent", 9, 2, 10, 1))
sketch3.addConstraint(Sketcher.Constraint("Coincident", 10, 2, 11, 1))
sketch3.addConstraint(Sketcher.Constraint("Coincident", 11, 2, 12, 1))
sketch3.addConstraint(Sketcher.Constraint("Tangent", 12, 2, 13, 1))
sketch3.addConstraint(Sketcher.Constraint("Tangent", 13, 2, 14, 1))
sketch3.addConstraint(Sketcher.Constraint("Coincident", 14, 2, 15, 1))
sketch3.addConstraint(Sketcher.Constraint("Coincident", 15, 2, 16, 1))
sketch3.addConstraint(Sketcher.Constraint("Tangent", 16, 2, 17, 1))
sketch3.addConstraint(Sketcher.Constraint("Tangent", 17, 2, 18, 1))
sketch3.addConstraint(Sketcher.Constraint("Coincident", 18, 2, 19, 1))
sketch3.addConstraint(Sketcher.Constraint("Coincident", 19, 2, 20, 1))
sketch3.addConstraint(Sketcher.Constraint("Tangent", 20, 2, 21, 1))
sketch3.addConstraint(Sketcher.Constraint("Tangent", 21, 2, 6, 1))
sketch3.addConstraint(Sketcher.Constraint("Vertical", 0))
sketch3.addConstraint(Sketcher.Constraint("Horizontal", 1))
sketch3.addConstraint(Sketcher.Constraint("Vertical", 2))
sketch3.addConstraint(Sketcher.Constraint("Horizontal", 3))
sketch3.addConstraint(Sketcher.Constraint("Horizontal", 6))
sketch3.addConstraint(Sketcher.Constraint("Vertical", 7))
sketch3.addConstraint(Sketcher.Constraint("Horizontal", 8))
sketch3.addConstraint(Sketcher.Constraint("Vertical", 10))
sketch3.addConstraint(Sketcher.Constraint("Horizontal", 11))
sketch3.addConstraint(Sketcher.Constraint("Vertical", 12))
sketch3.addConstraint(Sketcher.Constraint("Horizontal", 14))
sketch3.addConstraint(Sketcher.Constraint("Vertical", 15))
sketch3.addConstraint(Sketcher.Constraint("Horizontal", 16))
sketch3.addConstraint(Sketcher.Constraint("Vertical", 18))
sketch3.addConstraint(Sketcher.Constraint("Horizontal", 19))
sketch3.addConstraint(Sketcher.Constraint("Vertical", 20))
sketch3.addConstraint(Sketcher.Constraint("Coincident", 9, 3, 5, 3))
sketch3.addConstraint(Sketcher.Constraint("Coincident", 13, 3, 4, 3))
sketch3.addConstraint(Sketcher.Constraint("Coincident", 22, 3, 17, 3))
sketch3.addConstraint(Sketcher.Constraint("Coincident", 23, 3, 21, 3))
sketch3.addConstraint(Sketcher.Constraint("Equal", 4, 5))
sketch3.addConstraint(Sketcher.Constraint("Equal", 9, 13))
sketch3.addConstraint(Sketcher.Constraint("Equal", 13, 17))
sketch3.addConstraint(Sketcher.Constraint("Equal", 17, 21))
sketch3.addConstraint(Sketcher.Constraint("Equal", 5, 22))
sketch3.addConstraint(Sketcher.Constraint("Equal", 22, 23))
sketch3.addConstraint(Sketcher.Constraint("Symmetric", 5, 3, 17, 3, -1, 1))
sketch3.addConstraint(Sketcher.Constraint("Symmetric", 4, 3, 21, 3, -1, 1))
sketch3.addConstraint(Sketcher.Constraint("Symmetric", 0, 2, 2, 2, -1, 1))
sketch3.addConstraint(Sketcher.Constraint("Symmetric", 4, 3, 5, 3, -2))
sketch3.addConstraint(Sketcher.Constraint("Equal", 8, 14))
sketch3.addConstraint(Sketcher.Constraint("Equal", 12, 18))
sketch3.addConstraint(Sketcher.Constraint("Diameter", 4, Q("3.5 mm")))
sketch3.addConstraint(Sketcher.Constraint("Radius", 9, Q("4.200002 mm")))
sketch3.addConstraint(Sketcher.Constraint("DistanceY", 0, 2, 0, 1, Q("87.5 mm")))
sketch3.addConstraint(Sketcher.Constraint("DistanceY", 7, 2, 7, 1, Q("67.7 mm")))
sketch3.addConstraint(Sketcher.Constraint("DistanceY", 10, 2, 10, 1, Q("4.5 mm")))
sketch3.addConstraint(Sketcher.Constraint("DistanceX", 1, 1, 1, 2, Q("112.87 mm")))
sketch3.addConstraint(Sketcher.Constraint("DistanceX", 6, 1, 6, 2, Q("4.31 mm")))
sketch3.addConstraint(Sketcher.Constraint("DistanceX", 11, 2, 11, 1, Q("93.45 mm")))
sketch3.setExpression("Constraints[52]", "Params.sketch3_diameter")
sketch3.setExpression("Constraints[53]", "Params.sketch3_radius")
sketch3.setExpression("Constraints[54]", "Params.sketch3_height")
sketch3.setExpression("Constraints[55]", "Params.sketch3_height2")
sketch3.setExpression("Constraints[56]", "Params.sketch3_height3")
pad3 = body.newObject("PartDesign::Pad", "Pad002")
pad3.Profile = sketch3
pad3.setExpression("Length", "Params.pad3_length")

# Sketch on XY plane
sketch4 = body.newObject("Sketcher::SketchObject", "Sketch003")
sketch4.AttachmentSupport = (doc.getObject("XY_Plane"), [""])
sketch4.MapMode = "FlatFace"
sketch4.AttachmentOffset = App.Placement(App.Vector(0, 0, 5.6), App.Rotation())
add_polygon(sketch4, [(-56.435, 43.75), (-56.435, -43.75), (56.435, -43.75), (56.435, 43.75)])  # lines 0-3
add_polygon(sketch4, [(55.235, 42.55), (55.235, -42.55), (-55.235, -42.55), (-55.235, 42.55)])  # lines 4-7
sketch4.addConstraint(Sketcher.Constraint("Vertical", 0))
sketch4.addConstraint(Sketcher.Constraint("Horizontal", 1))
sketch4.addConstraint(Sketcher.Constraint("Vertical", 2))
sketch4.addConstraint(Sketcher.Constraint("Horizontal", 3))
sketch4.addConstraint(Sketcher.Constraint("Vertical", 4))
sketch4.addConstraint(Sketcher.Constraint("Horizontal", 5))
sketch4.addConstraint(Sketcher.Constraint("Vertical", 6))
sketch4.addConstraint(Sketcher.Constraint("Horizontal", 7))
sketch4.addConstraint(Sketcher.Constraint("Symmetric", 0, 2, 2, 2, -1, 1))
sketch4.addConstraint(Sketcher.Constraint("Symmetric", 4, 2, 6, 2, -1, 1))
sketch4.addConstraint(Sketcher.Constraint("DistanceY", 0, 2, 0, 1, Q("87.5 mm")))
sketch4.addConstraint(Sketcher.Constraint("DistanceY", 4, 2, 4, 1, Q("85.1 mm")))
sketch4.addConstraint(Sketcher.Constraint("DistanceX", 1, 1, 1, 2, Q("112.87 mm")))
sketch4.addConstraint(Sketcher.Constraint("DistanceX", 5, 2, 5, 1, Q("110.47 mm")))
sketch4.setExpression("Constraints[18]", "Params.sketch4_height")
sketch4.setExpression("Constraints[19]", "Params.sketch4_height2")
sketch4.setExpression("Constraints[20]", "Params.sketch4_width")
sketch4.setExpression("Constraints[21]", "Params.sketch4_width2")
pad4 = body.newObject("PartDesign::Pad", "Pad003")
pad4.Profile = sketch4
pad4.setExpression("Length", "Params.pad4_length")

# Sketch on XY plane
sketch5 = body.newObject("Sketcher::SketchObject", "Sketch004")
sketch5.AttachmentSupport = (doc.getObject("XY_Plane"), [""])
sketch5.MapMode = "FlatFace"
add_polygon(sketch5, [(-56.435, 63.75), (-56.435, 43.75), (56.435, 43.75), (56.435, 63.75)])  # lines 0-3
sketch5.addGeometry(Part.Circle(App.Vector(-41.435, 53.75, 0), App.Vector(0, 0, 1), 2.2), False)  # 4
sketch5.addGeometry(Part.Circle(App.Vector(41.435, 53.75, 0), App.Vector(0, 0, 1), 2.2), False)  # 5
sketch5.addConstraint(Sketcher.Constraint("Vertical", 0))
sketch5.addConstraint(Sketcher.Constraint("Horizontal", 1))
sketch5.addConstraint(Sketcher.Constraint("Vertical", 2))
sketch5.addConstraint(Sketcher.Constraint("Horizontal", 3))
sketch5.addConstraint(Sketcher.Constraint("Equal", 4, 5))
sketch5.addConstraint(Sketcher.Constraint("Symmetric", 4, 3, 5, 3, -2))
sketch5.addConstraint(Sketcher.Constraint("Diameter", 4, Q("4.4 mm")))
sketch5.addConstraint(Sketcher.Constraint("DistanceY", 0, 2, 0, 1, Q("20 mm")))
sketch5.addConstraint(Sketcher.Constraint("DistanceX", 0, 2, 4, 3, Q("15 mm")))
sketch5.addConstraint(Sketcher.Constraint("DistanceY", 0, 2, 4, 3, Q("10 mm")))
sketch5.addConstraint(Sketcher.Constraint("DistanceX", 5, 3, 1, 2, Q("15 mm")))
sketch5.addConstraint(Sketcher.Constraint("DistanceX", 1, 1, 1, 2, Q("112.87 mm")))
sketch5.addConstraint(Sketcher.Constraint("DistanceY", -1, 1, 4, 3, Q("53.75 mm")))
sketch5.setExpression("Constraints[10]", "Params.sketch5_diameter")
sketch5.setExpression("Constraints[11]", "Params.sketch5_height")
sketch5.setExpression("Constraints[15]", "Params.sketch5_width")
pad5 = body.newObject("PartDesign::Pad", "Pad004")
pad5.Profile = sketch5
pad5.setExpression("Length", "Params.pad5_length")
doc.recompute()

fillet = body.newObject("PartDesign::Fillet", "Fillet")
fillet.Base = (pad5, edges_at(pad5, [
    (-56.435, 10, 0),
    (46.725, 40.3, 2.2),
    (0, 42.55, 2.2),
    (-46.725, 40.3, 2.2),
    (-47.955, 35.08, 2.2),
    (-53.08, 33.85, 2.2),
    (-55.235, 0, 2.2),
    (-53.08, -33.85, 2.2),
    (-47.955, -35.08, 2.2),
    (-46.725, -40.3, 2.2),
    (0, -42.55, 2.2),
    (46.725, -40.3, 2.2),
    (47.955, -35.08, 2.2),
    (53.08, -33.85, 2.2),
    (55.235, 0, 2.2),
    (53.08, 33.85, 2.2),
    (47.955, 35.08, 2.2),
    (0, -43.75, 0),
    (56.435, 10, 0),
    (56.435, -43.75, 3.65),
    (56.435, 43.75, 4.75),
    (56.435, 53.75, 2.2),
    (56.435, 63.75, 1.1),
    (-56.435, 63.75, 1.1),
    (-56.435, 53.75, 2.2),
    (0, 63.75, 2.2),
    (-56.435, 43.75, 4.75),
    (-56.435, -43.75, 3.65),
]))
fillet.setExpression("Radius", "Params.fillet_radius")

doc.recompute()
